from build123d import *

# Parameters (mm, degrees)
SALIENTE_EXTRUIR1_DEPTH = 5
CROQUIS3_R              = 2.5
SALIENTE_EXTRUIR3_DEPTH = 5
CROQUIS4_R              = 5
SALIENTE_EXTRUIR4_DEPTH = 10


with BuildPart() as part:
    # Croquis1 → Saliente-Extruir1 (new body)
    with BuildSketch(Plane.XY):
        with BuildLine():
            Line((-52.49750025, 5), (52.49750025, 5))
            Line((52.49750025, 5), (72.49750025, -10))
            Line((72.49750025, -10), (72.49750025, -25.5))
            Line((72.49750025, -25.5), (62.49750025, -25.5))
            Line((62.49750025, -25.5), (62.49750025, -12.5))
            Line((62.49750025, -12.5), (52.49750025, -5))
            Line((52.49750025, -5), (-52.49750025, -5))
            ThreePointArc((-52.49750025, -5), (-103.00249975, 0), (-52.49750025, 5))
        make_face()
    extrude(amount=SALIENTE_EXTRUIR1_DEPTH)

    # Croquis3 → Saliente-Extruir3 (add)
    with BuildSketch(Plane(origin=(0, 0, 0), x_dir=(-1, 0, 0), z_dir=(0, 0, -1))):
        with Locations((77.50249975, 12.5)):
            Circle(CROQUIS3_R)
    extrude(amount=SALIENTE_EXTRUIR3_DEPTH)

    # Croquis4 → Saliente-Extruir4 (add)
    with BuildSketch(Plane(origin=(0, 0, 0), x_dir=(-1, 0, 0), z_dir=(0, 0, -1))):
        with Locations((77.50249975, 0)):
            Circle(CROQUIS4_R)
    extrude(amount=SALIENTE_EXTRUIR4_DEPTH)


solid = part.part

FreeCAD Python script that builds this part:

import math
import FreeCAD as App
import Part
import Sketcher
from FreeCAD import Vector

doc = App.newDocument("Part")
body = doc.addObject("PartDesign::Body", "Body")

# Sketch on XY plane
sketch1 = body.newObject("Sketcher::SketchObject", "Sketch")
sketch1.AttachmentSupport = (doc.getObject("XY_Plane"), [""])
sketch1.MapMode = "FlatFace"
sketch1.addGeometry(Part.LineSegment(Vector(52, 5, 0), Vector(-52, 5, 0)), False)
sketch1.addGeometry(Part.ArcOfCircle(Part.Circle(Vector(-78, 0, 0), Vector(0, 0, 1), 26), math.radians(11), math.radians(349)), False)
sketch1.addGeometry(Part.LineSegment(Vector(-52, -5, 0), Vector(52, -5, 0)), False)
sketch1.addGeometry(Part.LineSegment(Vector(52, -5, 0), Vector(62, -12, 0)), False)
sketch1.addGeometry(Part.LineSegment(Vector(62, -12, 0), Vector(62, -26, 0)), False)
sketch1.addGeometry(Part.LineSegment(Vector(62, -26, 0), Vector(72, -26, 0)), False)
sketch1.addGeometry(Part.LineSegment(Vector(72, -26, 0), Vector(72, -10, 0)), False)
sketch1.addGeometry(Part.LineSegment(Vector(72, -10, 0), Vector(52, 5, 0)), False)
sketch1.addConstraint(Sketcher.Constraint("Coincident", 0, 2, 1, 1))
sketch1.addConstraint(Sketcher.Constraint("Coincident", 1, 2, 2, 1))
sketch1.addConstraint(Sketcher.Constraint("Coincident", 2, 2, 3, 1))
sketch1.addConstraint(Sketcher.Constraint("Coincident", 3, 2, 4, 1))
sketch1.addConstraint(Sketcher.Constraint("Coincident", 4, 2, 5, 1))
sketch1.addConstraint(Sketcher.Constraint("Coincident", 5, 2, 6, 1))
sketch1.addConstraint(Sketcher.Constraint("Coincident", 6, 2, 7, 1))
sketch1.addConstraint(Sketcher.Constraint("Coincident", 7, 2, 0, 1))
sketch1.addConstraint(Sketcher.Constraint("Horizontal", 0))
sketch1.addConstraint(Sketcher.Constraint("Horizontal", 2))
sketch1.addConstraint(Sketcher.Constraint("Vertical", 4))
sketch1.addConstraint(Sketcher.Constraint("Horizontal", 5))
sketch1.addConstraint(Sketcher.Constraint("Vertical", 6))
sketch1.addConstraint(Sketcher.Constraint("Symmetric", 0, 2, 2, 2, -1, 1))
sketch1.addConstraint(Sketcher.Constraint("PointOnObject", 1, 3, -1))
sketch1.addConstraint(Sketcher.Constraint("Parallel", 3, 7))
sketch1.addConstraint(Sketcher.Constraint("Vertical", 2, 2, 7, 2))
sketch1.addConstraint(Sketcher.Constraint("Radius", 1, 25.5))
sketch1.addConstraint(Sketcher.Constraint("DistanceX", 5, 1, 5, 2, 10.0))
sketch1.addConstraint(Sketcher.Constraint("DistanceY", 4, 2, 4, 1, 13.0))
sketch1.addConstraint(Sketcher.Constraint("Distance", 7, 25.0))
sketch1.addConstraint(Sketcher.Constraint("DistanceY", 6, 1, 6, 2, 15.5))
sketch1.addConstraint(Sketcher.Constraint("DistanceY", -1, 1, 0, 2, 5.0))
sketch1.addConstraint(Sketcher.Constraint("DistanceX", 1, 3, 2, 2, 130.0))
pad1 = body.newObject("PartDesign::Pad", "Pad")
pad1.Profile = sketch1
pad1.Length = 5

# Sketch on XY plane
sketch2 = body.newObject("Sketcher::SketchObject", "Sketch001")
sketch2.AttachmentSupport = (doc.getObject("XY_Plane"), [""])
sketch2.MapMode = "FlatFace"
sketch2.addGeometry(Part.Circle(Vector(-77.5, 12.5, 0), Vector(0, 0, 1), 2.5), False)
sketch2.addConstraint(Sketcher.Constraint("Diameter", 0, 5.0))
sketch2.addConstraint(Sketcher.Constraint("DistanceY", -1, 1, 0, 3, 12.5))
sketch2.addConstraint(Sketcher.Constraint("DistanceX", 0, 3, -1, 1, 77.5025))
pad2 = body.newObject("PartDesign::Pad", "Pad001")
pad2.Profile = sketch2
pad2.Length = 5
pad2.Reversed = True

# Sketch on XY plane
sketch3 = body.newObject("Sketcher::SketchObject", "Sketch002")
sketch3.AttachmentSupport = (doc.getObject("XY_Plane"), [""])
sketch3.MapMode = "FlatFace"
sketch3.addGeometry(Part.Circle(Vector(-78, 0, 0), Vector(0, 0, 1), 5), False)
sketch3.addConstraint(Sketcher.Constraint("PointOnObject", 0, 3, -1))
sketch3.addConstraint(Sketcher.Constraint("Diameter", 0, 10.0))
sketch3.addConstraint(Sketcher.Constraint("DistanceX", 0, 3, -1, 1, 77.5025))
pad3 = body.newObject("PartDesign::Pad", "Pad002")
pad3.Profile = sketch3
pad3.Length = 10
pad3.Reversed = True

doc.recompute()
